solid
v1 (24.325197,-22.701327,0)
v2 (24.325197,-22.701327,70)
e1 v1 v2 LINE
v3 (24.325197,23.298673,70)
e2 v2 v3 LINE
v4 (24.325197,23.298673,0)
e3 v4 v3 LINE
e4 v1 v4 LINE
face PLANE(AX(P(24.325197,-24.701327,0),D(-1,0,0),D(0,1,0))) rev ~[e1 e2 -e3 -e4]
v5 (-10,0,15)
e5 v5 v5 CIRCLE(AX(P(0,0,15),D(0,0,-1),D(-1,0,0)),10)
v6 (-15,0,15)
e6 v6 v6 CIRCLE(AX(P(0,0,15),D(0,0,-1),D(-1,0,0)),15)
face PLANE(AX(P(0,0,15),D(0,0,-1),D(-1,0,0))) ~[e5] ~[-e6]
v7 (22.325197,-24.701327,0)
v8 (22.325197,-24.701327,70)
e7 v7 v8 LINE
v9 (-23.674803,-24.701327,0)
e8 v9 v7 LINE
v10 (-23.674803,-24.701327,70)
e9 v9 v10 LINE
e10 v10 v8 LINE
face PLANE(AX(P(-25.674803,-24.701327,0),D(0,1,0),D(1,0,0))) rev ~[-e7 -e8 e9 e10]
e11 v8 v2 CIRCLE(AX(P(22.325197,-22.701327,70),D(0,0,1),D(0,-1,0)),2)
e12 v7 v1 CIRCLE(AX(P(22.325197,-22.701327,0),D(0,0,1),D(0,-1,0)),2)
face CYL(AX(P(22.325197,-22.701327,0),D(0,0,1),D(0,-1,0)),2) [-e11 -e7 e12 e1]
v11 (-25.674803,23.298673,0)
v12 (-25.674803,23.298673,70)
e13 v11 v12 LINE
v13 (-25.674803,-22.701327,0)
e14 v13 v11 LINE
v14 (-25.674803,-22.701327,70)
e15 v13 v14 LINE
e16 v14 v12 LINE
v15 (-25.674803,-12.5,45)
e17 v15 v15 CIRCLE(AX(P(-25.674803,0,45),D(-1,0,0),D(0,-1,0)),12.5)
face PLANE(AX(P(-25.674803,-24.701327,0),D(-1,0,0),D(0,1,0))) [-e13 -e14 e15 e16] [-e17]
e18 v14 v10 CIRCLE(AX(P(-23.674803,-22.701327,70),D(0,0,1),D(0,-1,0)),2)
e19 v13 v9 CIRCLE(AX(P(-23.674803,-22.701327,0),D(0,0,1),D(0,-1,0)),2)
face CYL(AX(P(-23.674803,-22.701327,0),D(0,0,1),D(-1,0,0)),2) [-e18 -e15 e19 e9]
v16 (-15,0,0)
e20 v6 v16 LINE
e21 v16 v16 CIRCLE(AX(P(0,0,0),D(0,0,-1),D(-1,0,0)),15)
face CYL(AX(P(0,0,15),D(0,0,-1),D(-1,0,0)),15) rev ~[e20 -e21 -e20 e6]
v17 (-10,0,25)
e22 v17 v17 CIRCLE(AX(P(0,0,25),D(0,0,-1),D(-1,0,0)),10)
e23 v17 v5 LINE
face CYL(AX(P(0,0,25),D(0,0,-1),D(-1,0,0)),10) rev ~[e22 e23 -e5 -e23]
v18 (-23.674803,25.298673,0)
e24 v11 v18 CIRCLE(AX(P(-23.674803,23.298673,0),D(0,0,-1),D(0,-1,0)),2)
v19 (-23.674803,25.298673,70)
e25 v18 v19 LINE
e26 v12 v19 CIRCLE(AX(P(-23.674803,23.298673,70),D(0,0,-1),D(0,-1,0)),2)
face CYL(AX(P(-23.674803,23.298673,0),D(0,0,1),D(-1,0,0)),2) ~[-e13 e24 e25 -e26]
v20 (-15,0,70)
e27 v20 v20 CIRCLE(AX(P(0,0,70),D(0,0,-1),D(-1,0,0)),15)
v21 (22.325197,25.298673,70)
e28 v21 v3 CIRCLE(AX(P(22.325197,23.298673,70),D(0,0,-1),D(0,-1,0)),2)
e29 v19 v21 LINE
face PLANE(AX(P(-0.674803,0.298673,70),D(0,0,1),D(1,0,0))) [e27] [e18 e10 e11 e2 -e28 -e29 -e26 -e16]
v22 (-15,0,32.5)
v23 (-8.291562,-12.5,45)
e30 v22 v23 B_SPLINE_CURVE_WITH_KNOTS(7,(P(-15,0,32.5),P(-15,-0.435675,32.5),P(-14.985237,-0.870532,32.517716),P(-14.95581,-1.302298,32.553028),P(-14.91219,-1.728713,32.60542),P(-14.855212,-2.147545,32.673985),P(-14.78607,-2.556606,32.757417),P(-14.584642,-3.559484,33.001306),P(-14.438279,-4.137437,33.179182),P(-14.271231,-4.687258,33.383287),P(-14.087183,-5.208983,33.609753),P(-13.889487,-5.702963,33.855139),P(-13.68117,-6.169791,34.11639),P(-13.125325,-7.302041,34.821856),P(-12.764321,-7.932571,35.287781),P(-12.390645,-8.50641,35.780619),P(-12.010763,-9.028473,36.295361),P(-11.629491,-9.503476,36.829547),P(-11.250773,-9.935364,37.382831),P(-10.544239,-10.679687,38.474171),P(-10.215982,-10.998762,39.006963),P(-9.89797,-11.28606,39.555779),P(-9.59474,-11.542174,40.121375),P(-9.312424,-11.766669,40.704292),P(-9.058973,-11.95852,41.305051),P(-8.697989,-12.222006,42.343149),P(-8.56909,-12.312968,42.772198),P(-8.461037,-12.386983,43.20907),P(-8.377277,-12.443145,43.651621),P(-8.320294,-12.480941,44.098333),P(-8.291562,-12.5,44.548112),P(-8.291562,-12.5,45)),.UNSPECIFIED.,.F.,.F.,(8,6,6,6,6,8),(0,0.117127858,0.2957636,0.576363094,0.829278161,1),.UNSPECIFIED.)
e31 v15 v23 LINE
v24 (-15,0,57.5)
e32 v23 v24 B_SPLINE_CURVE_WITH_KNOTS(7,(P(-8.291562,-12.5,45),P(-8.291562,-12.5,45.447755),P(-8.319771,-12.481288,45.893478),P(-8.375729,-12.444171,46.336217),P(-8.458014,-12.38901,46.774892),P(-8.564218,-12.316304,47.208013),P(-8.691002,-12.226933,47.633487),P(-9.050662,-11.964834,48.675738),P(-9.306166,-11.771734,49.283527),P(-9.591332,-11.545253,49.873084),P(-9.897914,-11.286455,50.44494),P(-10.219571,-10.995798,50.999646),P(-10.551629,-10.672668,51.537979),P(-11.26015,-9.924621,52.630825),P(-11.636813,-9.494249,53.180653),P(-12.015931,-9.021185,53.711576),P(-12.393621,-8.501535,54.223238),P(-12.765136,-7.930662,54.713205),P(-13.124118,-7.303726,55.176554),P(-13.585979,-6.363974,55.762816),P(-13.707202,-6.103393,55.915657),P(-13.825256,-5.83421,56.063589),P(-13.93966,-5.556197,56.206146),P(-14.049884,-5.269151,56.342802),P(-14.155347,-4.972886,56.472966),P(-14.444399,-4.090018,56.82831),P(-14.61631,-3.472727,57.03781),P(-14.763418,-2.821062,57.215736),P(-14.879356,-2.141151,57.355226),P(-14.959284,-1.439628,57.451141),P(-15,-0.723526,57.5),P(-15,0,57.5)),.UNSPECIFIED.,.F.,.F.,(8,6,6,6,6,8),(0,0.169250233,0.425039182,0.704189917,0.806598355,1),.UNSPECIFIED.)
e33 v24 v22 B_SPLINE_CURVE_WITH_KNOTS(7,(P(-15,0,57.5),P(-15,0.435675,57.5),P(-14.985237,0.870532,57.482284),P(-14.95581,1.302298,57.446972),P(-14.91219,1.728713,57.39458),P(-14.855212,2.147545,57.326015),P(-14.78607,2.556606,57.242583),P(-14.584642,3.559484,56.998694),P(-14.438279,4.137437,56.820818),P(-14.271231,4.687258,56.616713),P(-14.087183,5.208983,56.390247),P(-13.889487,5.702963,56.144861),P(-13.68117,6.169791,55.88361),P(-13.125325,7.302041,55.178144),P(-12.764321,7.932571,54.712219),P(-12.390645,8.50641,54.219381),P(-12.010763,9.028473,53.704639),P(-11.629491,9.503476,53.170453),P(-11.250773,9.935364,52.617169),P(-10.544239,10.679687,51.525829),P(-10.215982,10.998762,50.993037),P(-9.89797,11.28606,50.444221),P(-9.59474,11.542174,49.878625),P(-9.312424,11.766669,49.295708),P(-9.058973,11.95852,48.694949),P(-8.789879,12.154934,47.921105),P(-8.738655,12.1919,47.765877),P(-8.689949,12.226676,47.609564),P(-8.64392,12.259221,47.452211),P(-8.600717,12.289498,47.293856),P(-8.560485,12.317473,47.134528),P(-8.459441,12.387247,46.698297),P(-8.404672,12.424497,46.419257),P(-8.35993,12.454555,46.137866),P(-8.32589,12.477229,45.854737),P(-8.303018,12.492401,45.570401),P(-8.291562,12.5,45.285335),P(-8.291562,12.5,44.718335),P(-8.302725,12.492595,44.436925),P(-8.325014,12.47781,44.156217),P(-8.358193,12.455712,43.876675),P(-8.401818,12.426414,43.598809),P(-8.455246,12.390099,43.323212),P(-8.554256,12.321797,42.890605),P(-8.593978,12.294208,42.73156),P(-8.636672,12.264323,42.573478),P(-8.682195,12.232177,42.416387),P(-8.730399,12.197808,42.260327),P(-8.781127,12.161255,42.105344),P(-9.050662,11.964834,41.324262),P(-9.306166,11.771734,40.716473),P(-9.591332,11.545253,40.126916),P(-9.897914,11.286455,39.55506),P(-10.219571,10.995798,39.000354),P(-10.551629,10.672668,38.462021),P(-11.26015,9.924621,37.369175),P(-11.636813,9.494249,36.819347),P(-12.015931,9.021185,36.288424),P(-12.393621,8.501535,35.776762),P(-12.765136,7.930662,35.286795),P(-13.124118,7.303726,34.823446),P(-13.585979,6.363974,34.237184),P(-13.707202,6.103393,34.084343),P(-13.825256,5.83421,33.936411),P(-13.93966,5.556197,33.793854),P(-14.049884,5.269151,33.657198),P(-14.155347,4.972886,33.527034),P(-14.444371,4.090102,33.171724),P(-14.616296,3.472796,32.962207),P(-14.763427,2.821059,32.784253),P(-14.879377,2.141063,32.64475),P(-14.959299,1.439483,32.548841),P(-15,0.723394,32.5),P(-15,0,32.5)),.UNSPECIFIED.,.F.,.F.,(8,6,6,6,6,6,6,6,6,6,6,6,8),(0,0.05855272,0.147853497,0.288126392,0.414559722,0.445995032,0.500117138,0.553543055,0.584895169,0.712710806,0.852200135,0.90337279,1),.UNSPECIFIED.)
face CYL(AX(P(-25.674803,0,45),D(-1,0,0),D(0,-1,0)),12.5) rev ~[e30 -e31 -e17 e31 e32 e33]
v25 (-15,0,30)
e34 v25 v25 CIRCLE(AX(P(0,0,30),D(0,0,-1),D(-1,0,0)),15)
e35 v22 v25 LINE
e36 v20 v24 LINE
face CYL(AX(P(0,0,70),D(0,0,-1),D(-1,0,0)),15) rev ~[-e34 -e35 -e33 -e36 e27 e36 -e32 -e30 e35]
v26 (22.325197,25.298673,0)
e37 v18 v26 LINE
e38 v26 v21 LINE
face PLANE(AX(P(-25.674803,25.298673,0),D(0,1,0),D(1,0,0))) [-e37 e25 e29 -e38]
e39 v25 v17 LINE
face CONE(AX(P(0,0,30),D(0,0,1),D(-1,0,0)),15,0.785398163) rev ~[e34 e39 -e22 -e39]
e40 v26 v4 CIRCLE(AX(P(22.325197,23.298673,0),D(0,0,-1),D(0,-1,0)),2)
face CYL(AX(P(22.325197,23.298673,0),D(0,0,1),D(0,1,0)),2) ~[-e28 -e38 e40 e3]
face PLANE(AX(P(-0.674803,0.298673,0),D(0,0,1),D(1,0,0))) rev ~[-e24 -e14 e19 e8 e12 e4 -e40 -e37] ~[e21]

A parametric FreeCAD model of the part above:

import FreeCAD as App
import Part
import Sketcher

V = App.Vector
Q = App.Units.Quantity


def edges_at(feature, points):
    """Names of the edges that pass closest to the given points."""
    edges = feature.Shape.Edges
    near = lambda p: min(range(len(edges)), key=lambda i: edges[i].distToShape(Part.Vertex(*p))[0])
    return sorted({f"Edge{near(p) + 1}" for p in points})

doc = App.newDocument("Part")
body = doc.addObject("PartDesign::Body", "Body")

# Sketch on XY plane
sketch1 = body.newObject("Sketcher::SketchObject", "Sketch")
sketch1.AttachmentSupport = (doc.getObject("XY_Plane"), [""])
sketch1.MapMode = "FlatFace"
sketch1.addGeometry(Part.LineSegment(V(-26, 25, 0), V(-26, -25, 0)), False)
sketch1.addGeometry(Part.LineSegment(V(-26, -25, 0), V(24, -25, 0)), False)
sketch1.addGeometry(Part.LineSegment(V(24, -25, 0), V(24, 25, 0)), False)
sketch1.addGeometry(Part.LineSegment(V(24, 25, 0), V(-26, 25, 0)), False)
sketch1.addConstraint(Sketcher.Constraint("Coincident", 0, 2, 1, 1))
sketch1.addConstraint(Sketcher.Constraint("Coincident", 1, 2, 2, 1))
sketch1.addConstraint(Sketcher.Constraint("Coincident", 2, 2, 3, 1))
sketch1.addConstraint(Sketcher.Constraint("Coincident", 3, 2, 0, 1))
sketch1.addConstraint(Sketcher.Constraint("Vertical", 0))
sketch1.addConstraint(Sketcher.Constraint("Horizontal", 1))
sketch1.addConstraint(Sketcher.Constraint("Vertical", 2))
sketch1.addConstraint(Sketcher.Constraint("Horizontal", 3))
sketch1.addConstraint(Sketcher.Constraint("Equal", 3, 0))
sketch1.addConstraint(Sketcher.Constraint("DistanceX", 1, 1, 1, 2, Q("50 mm")))
sketch1.addConstraint(Sketcher.Constraint("DistanceX", 0, 2, -1, 1, Q("25.674803 mm")))
sketch1.addConstraint(Sketcher.Constraint("DistanceY", 0, 2, -1, 1, Q("24.701327 mm")))
pad1 = body.newObject("PartDesign::Pad", "Pad")
pad1.Profile = sketch1
pad1.Length = 70

# Sketch on XZ plane
sketch2 = body.newObject("Sketcher::SketchObject", "Sketch001")
sketch2.AttachmentSupport = (doc.getObject("XZ_Plane"), [""])
sketch2.MapMode = "FlatFace"
sketch2.addGeometry(Part.LineSegment(V(0, 70, 0), V(-15, 70, 0)), False)
sketch2.addGeometry(Part.LineSegment(V(-15, 70, 0), V(-15, 30, 0)), False)
sketch2.addGeometry(Part.LineSegment(V(-15, 30, 0), V(-10, 25, 0)), False)
sketch2.addGeometry(Part.LineSegment(V(-10, 25, 0), V(-10, 15, 0)), False)
sketch2.addGeometry(Part.LineSegment(V(-10, 15, 0), V(-15, 15, 0)), False)
sketch2.addGeometry(Part.LineSegment(V(-15, 15, 0), V(-15, 0, 0)), False)
sketch2.addGeometry(Part.LineSegment(V(-15, 0, 0), V(0, 0, 0)), False)
sketch2.addGeometry(Part.LineSegment(V(0, 0, 0), V(0, 70, 0)), False)
sketch2.addConstraint(Sketcher.Constraint("Coincident", 0, 2, 1, 1))
sketch2.addConstraint(Sketcher.Constraint("Coincident", 1, 2, 2, 1))
sketch2.addConstraint(Sketcher.Constraint("Coincident", 2, 2, 3, 1))
sketch2.addConstraint(Sketcher.Constraint("Coincident", 3, 2, 4, 1))
sketch2.addConstraint(Sketcher.Constraint("Coincident", 4, 2, 5, 1))
sketch2.addConstraint(Sketcher.Constraint("Coincident", 5, 2, 6, 1))
sketch2.addConstraint(Sketcher.Constraint("Coincident", 6, 2, 7, 1))
sketch2.addConstraint(Sketcher.Constraint("Coincident", 7, 2, 0, 1))
sketch2.addConstraint(Sketcher.Constraint("Horizontal", 0))
sketch2.addConstraint(Sketcher.Constraint("Vertical", 1))
sketch2.addConstraint(Sketcher.Constraint("Vertical", 3))
sketch2.addConstraint(Sketcher.Constraint("Horizontal", 4))
sketch2.addConstraint(Sketcher.Constraint("Vertical", 5))
sketch2.addConstraint(Sketcher.Constraint("Horizontal", 6))
sketch2.addConstraint(Sketcher.Constraint("Vertical", 7))
sketch2.addConstraint(Sketcher.Constraint("Coincident", 6, 2, -1, 1))
sketch2.addConstraint(Sketcher.Constraint("Vertical", 1, 2, 4, 2))
sketch2.addConstraint(Sketcher.Constraint("Equal", 6, 5))
sketch2.addConstraint(Sketcher.Constraint("DistanceX", 0, 2, 0, 1, Q("15 mm")))
sketch2.addConstraint(Sketcher.Constraint("DistanceX", 4, 2, 4, 1, Q("5 mm")))
sketch2.addConstraint(Sketcher.Constraint("DistanceY", 1, 2, 1, 1, Q("40 mm")))
sketch2.addConstraint(Sketcher.Constraint("DistanceY", 3, 2, 3, 1, Q("10 mm")))
sketch2.addConstraint(Sketcher.Constraint("DistanceY", 7, 1, 7, 2, Q("70 mm")))
groove = body.newObject("PartDesign::Groove", "Groove")
groove.Profile = sketch2
groove.ReferenceAxis = (sketch2, ["V_Axis"])
groove.Angle = 360

# Sketch on YZ plane
sketch3 = body.newObject("Sketcher::SketchObject", "Sketch002")
sketch3.AttachmentSupport = (doc.getObject("YZ_Plane"), [""])
sketch3.MapMode = "FlatFace"
sketch3.AttachmentOffset = App.Placement(V(0, 0, -25.674803), App.Rotation())
sketch3.addGeometry(Part.Circle(V(0, 45, 0), V(0, 0, 1), 12), False)
sketch3.addConstraint(Sketcher.Constraint("PointOnObject", 0, 3, -2))
sketch3.addConstraint(Sketcher.Constraint("Diameter", 0, Q("25 mm")))
sketch3.addConstraint(Sketcher.Constraint("DistanceY", -1, 1, 0, 3, Q("45 mm")))
pocket1 = body.newObject("PartDesign::Pocket", "Pocket")
pocket1.Profile = sketch3
pocket1.Length = 25
pocket1.Reversed = True
doc.recompute()

fillet = body.newObject("PartDesign::Fillet", "Fillet")
fillet.Base = (pocket1, edges_at(pocket1, [
    (-25.675, 25.299, 35),
    (24.325, 25.299, 35),
    (24.325, -24.701, 35),
    (-25.675, -24.701, 35),
]))
fillet.Radius = 2

doc.recompute()
